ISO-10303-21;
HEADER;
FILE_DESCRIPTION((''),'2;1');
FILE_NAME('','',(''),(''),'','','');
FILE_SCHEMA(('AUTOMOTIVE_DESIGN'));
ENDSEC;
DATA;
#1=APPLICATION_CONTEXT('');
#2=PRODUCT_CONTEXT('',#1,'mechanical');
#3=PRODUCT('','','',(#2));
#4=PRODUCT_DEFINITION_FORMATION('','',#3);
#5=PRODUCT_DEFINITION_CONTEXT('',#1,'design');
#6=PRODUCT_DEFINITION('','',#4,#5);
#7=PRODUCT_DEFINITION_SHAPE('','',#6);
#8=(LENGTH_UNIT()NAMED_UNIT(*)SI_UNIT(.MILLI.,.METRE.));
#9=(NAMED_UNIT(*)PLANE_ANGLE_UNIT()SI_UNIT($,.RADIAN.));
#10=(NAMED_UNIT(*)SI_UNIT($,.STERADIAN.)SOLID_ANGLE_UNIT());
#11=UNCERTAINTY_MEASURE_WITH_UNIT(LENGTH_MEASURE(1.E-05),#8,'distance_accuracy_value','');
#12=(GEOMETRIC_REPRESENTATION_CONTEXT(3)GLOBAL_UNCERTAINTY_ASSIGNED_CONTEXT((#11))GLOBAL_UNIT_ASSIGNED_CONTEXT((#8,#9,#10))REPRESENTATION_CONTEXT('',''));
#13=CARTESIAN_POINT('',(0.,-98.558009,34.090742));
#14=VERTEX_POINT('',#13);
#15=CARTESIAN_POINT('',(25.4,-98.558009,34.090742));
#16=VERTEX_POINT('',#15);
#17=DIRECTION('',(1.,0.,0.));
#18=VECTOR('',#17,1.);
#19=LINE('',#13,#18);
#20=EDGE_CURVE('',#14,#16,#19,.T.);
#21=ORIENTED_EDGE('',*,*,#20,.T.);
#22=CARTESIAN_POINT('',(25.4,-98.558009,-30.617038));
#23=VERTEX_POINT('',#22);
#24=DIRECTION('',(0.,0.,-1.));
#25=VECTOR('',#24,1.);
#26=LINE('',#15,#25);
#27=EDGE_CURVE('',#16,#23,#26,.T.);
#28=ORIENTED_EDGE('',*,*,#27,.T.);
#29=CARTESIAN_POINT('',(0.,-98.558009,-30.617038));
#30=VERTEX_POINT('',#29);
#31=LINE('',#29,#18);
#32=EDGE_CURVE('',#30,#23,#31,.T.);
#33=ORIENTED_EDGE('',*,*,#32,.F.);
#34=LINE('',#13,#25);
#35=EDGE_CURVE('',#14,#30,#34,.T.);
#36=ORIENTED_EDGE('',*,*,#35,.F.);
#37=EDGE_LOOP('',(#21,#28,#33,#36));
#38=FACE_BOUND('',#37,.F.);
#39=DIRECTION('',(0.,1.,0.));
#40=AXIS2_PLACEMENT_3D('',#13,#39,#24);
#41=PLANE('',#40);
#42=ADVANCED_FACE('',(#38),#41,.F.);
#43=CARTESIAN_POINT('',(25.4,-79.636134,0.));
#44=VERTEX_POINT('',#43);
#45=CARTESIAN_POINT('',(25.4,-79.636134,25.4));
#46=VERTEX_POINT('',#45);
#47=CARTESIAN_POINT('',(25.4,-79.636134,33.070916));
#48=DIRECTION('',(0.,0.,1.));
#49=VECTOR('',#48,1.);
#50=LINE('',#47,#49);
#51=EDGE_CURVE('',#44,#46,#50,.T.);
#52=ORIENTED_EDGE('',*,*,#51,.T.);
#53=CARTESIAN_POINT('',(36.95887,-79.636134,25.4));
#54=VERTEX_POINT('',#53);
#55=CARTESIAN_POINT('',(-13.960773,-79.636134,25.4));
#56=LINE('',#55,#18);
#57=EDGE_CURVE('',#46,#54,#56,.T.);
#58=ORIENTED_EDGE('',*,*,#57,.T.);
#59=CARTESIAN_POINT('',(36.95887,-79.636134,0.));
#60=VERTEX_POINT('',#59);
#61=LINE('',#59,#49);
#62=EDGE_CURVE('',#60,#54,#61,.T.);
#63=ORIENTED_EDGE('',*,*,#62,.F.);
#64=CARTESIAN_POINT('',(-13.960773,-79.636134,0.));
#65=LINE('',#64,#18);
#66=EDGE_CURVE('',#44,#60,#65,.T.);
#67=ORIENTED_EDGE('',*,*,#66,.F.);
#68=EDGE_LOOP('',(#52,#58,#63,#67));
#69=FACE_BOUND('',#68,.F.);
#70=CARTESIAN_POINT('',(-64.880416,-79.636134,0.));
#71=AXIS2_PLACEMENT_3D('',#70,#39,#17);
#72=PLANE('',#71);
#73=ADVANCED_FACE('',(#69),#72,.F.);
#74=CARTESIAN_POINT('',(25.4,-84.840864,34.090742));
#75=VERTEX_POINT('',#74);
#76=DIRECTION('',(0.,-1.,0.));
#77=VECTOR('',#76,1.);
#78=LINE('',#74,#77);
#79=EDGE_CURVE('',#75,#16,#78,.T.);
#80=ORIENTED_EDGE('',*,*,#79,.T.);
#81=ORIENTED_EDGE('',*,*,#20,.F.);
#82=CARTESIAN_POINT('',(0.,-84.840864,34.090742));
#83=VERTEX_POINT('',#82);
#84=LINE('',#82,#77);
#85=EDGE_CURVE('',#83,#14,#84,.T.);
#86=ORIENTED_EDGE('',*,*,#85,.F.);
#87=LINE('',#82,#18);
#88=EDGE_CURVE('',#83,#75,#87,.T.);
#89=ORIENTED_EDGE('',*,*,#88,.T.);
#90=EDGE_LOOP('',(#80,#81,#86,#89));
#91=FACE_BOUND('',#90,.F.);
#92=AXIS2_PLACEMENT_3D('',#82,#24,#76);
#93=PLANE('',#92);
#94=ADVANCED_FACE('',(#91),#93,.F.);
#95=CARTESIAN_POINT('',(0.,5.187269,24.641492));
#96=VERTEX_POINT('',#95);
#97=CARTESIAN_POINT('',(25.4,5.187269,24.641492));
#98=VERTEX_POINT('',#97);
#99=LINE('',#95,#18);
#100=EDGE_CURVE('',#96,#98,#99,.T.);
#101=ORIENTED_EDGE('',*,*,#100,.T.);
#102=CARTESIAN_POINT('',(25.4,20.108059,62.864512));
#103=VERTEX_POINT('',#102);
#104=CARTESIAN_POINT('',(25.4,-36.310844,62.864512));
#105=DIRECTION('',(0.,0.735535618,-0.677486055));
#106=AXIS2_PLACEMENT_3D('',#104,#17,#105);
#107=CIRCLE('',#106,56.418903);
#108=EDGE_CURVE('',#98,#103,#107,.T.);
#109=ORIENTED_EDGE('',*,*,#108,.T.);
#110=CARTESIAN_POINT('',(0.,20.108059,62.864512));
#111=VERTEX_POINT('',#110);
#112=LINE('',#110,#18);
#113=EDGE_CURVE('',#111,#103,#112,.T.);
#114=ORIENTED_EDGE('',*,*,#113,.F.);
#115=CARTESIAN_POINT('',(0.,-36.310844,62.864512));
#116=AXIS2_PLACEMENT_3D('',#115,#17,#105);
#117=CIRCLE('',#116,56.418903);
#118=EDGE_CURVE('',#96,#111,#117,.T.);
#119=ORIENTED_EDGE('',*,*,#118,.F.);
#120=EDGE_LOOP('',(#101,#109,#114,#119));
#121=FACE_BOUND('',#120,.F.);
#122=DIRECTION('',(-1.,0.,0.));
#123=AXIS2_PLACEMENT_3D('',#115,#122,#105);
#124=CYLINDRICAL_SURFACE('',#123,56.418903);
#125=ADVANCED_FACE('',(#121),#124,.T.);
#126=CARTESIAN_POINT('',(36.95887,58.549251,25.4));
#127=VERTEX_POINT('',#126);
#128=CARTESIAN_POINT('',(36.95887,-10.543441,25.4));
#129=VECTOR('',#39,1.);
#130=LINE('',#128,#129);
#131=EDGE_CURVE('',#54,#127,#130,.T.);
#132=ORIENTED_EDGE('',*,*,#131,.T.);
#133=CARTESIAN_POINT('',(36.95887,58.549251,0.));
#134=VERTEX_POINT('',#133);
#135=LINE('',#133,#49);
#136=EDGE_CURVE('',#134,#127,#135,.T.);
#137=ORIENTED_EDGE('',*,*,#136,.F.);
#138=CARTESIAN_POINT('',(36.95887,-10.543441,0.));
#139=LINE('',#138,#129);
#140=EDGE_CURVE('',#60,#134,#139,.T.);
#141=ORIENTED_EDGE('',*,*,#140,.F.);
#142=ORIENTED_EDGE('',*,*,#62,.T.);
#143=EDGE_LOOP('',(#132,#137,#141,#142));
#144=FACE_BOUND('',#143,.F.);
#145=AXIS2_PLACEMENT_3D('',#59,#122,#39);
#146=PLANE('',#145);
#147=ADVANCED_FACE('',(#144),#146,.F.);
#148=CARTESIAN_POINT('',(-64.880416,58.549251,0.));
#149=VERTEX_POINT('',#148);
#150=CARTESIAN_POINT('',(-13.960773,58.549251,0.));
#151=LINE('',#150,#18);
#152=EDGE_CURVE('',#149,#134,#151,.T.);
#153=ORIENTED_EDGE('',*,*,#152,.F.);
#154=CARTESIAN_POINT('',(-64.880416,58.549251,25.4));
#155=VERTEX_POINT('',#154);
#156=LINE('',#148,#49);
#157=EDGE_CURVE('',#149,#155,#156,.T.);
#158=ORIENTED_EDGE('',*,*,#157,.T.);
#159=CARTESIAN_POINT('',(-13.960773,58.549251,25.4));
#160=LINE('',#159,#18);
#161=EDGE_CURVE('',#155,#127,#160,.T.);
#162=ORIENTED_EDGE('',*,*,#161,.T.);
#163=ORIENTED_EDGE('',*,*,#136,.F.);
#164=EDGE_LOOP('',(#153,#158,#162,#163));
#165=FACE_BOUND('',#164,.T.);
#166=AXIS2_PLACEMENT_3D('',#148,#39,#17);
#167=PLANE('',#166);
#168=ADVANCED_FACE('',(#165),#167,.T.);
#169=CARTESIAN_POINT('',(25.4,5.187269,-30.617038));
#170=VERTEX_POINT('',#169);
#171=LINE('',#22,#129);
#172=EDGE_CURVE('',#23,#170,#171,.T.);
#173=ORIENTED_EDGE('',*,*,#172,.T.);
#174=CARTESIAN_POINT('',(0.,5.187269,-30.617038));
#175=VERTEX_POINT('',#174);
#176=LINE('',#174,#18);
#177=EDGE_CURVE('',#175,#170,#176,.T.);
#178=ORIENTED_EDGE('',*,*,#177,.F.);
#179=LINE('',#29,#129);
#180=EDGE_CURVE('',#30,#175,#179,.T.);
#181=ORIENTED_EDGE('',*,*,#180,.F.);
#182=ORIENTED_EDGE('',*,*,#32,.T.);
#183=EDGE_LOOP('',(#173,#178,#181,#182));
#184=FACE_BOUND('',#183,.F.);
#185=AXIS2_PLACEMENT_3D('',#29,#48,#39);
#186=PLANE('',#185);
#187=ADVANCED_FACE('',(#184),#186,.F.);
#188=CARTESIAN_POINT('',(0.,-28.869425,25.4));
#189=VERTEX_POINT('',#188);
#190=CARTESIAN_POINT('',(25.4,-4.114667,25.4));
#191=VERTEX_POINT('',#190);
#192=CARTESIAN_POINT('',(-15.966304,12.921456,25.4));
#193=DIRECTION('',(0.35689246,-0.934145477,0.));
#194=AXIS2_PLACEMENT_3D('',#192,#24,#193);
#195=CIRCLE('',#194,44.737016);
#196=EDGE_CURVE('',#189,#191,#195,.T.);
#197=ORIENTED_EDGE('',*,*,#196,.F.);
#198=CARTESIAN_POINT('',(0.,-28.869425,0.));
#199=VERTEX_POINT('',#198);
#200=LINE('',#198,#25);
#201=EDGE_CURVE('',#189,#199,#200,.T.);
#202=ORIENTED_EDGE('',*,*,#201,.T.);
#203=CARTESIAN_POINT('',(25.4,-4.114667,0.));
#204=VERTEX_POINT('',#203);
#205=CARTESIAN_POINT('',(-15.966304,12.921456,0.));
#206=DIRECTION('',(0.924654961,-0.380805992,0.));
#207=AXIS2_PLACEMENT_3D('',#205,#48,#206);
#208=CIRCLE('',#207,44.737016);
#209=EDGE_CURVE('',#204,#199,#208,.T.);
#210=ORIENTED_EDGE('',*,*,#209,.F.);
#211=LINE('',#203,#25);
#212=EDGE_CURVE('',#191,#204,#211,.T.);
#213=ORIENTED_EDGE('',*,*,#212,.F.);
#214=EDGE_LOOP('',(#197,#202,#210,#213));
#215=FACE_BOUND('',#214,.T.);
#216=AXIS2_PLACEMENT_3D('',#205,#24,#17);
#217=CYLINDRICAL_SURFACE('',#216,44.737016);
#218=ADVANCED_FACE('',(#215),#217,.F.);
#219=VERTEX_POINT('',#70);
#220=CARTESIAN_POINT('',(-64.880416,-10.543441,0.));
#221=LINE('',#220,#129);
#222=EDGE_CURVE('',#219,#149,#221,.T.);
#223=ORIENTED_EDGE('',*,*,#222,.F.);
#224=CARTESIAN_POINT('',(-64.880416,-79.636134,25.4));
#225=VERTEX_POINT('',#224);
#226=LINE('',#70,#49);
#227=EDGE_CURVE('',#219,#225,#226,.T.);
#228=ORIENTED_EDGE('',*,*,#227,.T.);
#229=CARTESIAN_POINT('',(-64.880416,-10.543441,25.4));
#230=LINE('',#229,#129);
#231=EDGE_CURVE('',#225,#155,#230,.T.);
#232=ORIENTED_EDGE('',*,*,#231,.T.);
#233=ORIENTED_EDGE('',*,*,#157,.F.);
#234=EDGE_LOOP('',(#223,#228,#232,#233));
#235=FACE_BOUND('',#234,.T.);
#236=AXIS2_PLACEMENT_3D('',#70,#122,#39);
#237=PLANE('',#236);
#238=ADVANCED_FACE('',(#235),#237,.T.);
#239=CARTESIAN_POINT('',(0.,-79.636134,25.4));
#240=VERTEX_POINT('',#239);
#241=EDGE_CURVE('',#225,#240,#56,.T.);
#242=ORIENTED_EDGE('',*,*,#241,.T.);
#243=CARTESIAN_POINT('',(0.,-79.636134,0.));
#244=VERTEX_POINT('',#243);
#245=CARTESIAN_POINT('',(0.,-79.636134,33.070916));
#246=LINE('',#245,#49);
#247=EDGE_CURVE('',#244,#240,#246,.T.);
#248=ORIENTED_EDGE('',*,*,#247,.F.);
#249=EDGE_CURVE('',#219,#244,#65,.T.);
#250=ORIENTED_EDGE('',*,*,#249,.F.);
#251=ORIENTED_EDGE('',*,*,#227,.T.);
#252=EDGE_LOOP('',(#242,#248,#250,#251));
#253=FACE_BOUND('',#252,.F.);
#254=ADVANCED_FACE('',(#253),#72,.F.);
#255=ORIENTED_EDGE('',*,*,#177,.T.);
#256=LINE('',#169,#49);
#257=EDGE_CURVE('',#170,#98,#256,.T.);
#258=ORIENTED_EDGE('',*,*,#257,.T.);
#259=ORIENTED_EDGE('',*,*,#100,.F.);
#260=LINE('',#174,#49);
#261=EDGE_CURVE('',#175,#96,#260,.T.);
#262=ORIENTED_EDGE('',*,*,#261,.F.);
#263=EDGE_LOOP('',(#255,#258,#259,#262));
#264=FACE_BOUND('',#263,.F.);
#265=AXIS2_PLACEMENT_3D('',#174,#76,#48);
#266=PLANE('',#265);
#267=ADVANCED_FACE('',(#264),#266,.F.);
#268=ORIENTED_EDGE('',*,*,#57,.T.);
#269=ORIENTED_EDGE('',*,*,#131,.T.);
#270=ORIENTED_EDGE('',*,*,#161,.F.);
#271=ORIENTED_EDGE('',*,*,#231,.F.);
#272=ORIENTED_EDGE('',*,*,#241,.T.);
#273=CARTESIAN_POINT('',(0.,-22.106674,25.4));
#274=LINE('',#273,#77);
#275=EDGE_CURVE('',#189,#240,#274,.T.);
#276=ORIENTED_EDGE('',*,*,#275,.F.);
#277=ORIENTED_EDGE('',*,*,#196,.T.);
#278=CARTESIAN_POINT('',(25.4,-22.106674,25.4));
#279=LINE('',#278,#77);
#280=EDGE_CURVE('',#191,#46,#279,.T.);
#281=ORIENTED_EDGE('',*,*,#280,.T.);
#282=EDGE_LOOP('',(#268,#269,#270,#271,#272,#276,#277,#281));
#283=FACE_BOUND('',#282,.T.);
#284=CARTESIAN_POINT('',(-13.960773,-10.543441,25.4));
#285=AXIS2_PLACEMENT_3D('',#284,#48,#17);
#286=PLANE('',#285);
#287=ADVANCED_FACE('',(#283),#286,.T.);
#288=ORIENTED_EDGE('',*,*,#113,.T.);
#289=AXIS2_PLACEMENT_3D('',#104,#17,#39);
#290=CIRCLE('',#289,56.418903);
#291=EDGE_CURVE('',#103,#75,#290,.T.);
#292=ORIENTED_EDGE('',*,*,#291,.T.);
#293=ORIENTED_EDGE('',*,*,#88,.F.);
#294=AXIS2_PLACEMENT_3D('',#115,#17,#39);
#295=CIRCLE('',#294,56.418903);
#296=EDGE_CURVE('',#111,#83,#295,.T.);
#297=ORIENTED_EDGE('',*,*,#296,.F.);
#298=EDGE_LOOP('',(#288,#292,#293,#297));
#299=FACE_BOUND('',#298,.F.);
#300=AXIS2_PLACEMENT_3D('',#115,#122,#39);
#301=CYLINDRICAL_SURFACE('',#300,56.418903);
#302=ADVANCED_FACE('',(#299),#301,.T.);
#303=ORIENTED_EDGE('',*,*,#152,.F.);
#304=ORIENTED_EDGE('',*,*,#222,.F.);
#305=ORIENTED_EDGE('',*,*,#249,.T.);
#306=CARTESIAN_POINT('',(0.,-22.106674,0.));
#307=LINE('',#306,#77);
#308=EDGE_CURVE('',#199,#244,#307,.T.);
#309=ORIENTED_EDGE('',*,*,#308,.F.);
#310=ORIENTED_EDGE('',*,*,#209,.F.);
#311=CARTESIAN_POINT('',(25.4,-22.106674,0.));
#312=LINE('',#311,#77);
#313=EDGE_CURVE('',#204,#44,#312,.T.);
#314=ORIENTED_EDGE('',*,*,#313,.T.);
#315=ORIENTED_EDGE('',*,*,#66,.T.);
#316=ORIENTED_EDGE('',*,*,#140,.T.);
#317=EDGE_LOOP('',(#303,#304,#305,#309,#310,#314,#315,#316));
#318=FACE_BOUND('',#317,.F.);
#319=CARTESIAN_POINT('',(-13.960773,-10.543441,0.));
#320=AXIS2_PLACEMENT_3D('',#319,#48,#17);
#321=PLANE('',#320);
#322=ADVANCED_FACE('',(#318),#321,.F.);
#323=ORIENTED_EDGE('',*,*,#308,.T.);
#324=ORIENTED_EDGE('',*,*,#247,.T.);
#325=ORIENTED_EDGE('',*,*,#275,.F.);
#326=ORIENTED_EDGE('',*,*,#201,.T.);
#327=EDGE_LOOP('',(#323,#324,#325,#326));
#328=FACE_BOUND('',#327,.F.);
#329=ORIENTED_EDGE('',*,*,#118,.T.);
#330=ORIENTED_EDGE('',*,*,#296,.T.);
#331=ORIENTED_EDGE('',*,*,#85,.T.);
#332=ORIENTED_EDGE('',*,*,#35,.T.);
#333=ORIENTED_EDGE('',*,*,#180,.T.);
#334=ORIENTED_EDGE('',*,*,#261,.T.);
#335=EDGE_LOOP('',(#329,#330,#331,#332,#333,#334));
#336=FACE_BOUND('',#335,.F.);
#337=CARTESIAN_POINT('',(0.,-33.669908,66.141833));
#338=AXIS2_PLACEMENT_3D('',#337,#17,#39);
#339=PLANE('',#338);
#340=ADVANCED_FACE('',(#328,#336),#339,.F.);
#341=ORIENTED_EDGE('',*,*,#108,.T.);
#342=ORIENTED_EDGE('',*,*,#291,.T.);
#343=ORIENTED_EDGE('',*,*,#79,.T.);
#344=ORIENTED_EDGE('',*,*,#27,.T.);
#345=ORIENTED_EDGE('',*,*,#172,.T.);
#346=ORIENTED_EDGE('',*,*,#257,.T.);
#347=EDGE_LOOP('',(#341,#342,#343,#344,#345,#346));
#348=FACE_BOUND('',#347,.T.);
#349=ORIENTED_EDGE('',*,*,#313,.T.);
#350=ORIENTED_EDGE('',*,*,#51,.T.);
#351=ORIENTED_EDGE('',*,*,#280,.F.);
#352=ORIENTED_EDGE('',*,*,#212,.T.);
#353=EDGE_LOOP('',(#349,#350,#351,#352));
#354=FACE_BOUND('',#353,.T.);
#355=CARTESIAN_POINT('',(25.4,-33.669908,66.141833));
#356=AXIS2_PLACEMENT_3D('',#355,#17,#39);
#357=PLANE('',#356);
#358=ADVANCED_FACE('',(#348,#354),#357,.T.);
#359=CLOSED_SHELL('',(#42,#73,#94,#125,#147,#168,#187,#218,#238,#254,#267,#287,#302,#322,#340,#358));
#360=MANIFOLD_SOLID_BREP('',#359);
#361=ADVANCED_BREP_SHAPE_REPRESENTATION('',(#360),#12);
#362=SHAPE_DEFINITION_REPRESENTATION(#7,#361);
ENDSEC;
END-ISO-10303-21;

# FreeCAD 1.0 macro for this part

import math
import FreeCAD as App
import Part
import Sketcher
Q = App.Units.Quantity


def add_polygon(sketch, points):
    """Adds a closed chain of lines whose ends are joined by coincident constraints."""
    first, n = sketch.GeometryCount, len(points)
    for a, b in zip(points, points[1:] + points[:1]):
        sketch.addGeometry(Part.LineSegment(App.Vector(*a, 0), App.Vector(*b, 0)), False)
    for i in range(n):
        sketch.addConstraint(Sketcher.Constraint("Coincident", first + i, 2, first + (i + 1) % n, 1))

doc = App.newDocument("Part")
body = doc.addObject("PartDesign::Body", "Body")

sketch1 = body.newObject("Sketcher::SketchObject", "Sketch")
sketch1.AttachmentSupport = (doc.getObject("YZ_Plane"), [""])
sketch1.MapMode = "FlatFace"
sketch1.addGeometry([
    Part.ArcOfCircle(Part.Circle(App.Vector(-36, 63, 0), App.Vector(0, 0, 1), 56), math.radians(-43), math.radians(0)),
    Part.ArcOfCircle(Part.Circle(App.Vector(-36, 63, 0), App.Vector(0, 0, 1), 56), math.radians(0), math.radians(211)),
    Part.LineSegment(App.Vector(-85, 34, 0), App.Vector(-99, 34, 0)),
    Part.LineSegment(App.Vector(-99, 34, 0), App.Vector(-99, -31, 0)),
    Part.LineSegment(App.Vector(-99, -31, 0), App.Vector(5, -31, 0)),
    Part.LineSegment(App.Vector(5, -31, 0), App.Vector(5, 25, 0)),
], False)
sketch1.addConstraint([
    Sketcher.Constraint("Tangent", 0, 2, 1, 1),
    Sketcher.Constraint("Coincident", 1, 2, 2, 1),
    Sketcher.Constraint("Coincident", 2, 2, 3, 1),
    Sketcher.Constraint("Coincident", 3, 2, 4, 1),
    Sketcher.Constraint("Coincident", 4, 2, 5, 1),
    Sketcher.Constraint("Coincident", 5, 2, 0, 1),
    Sketcher.Constraint("Horizontal", 2),
    Sketcher.Constraint("Vertical", 3),
    Sketcher.Constraint("Horizontal", 4),
    Sketcher.Constraint("Vertical", 5),
    Sketcher.Constraint("Equal", 0, 1),
    Sketcher.Constraint("Horizontal", 1, 3, 0, 2),
    Sketcher.Constraint("Radius", 0, Q("56.418903 mm")),
    Sketcher.Constraint("DistanceY", 3, 2, 3, 1, Q("64.70778 mm")),
    Sketcher.Constraint("DistanceY", 5, 1, 5, 2, Q("55.25853 mm")),
    Sketcher.Constraint("DistanceX", 2, 2, 2, 1, Q("13.717145 mm")),
    Sketcher.Constraint("DistanceX", 4, 1, 4, 2, Q("103.745278 mm")),
    Sketcher.Constraint("DistanceX", -1, 1, 0, 2, Q("20.108059 mm")),
    Sketcher.Constraint("DistanceY", -1, 1, 5, 2, Q("24.641492 mm")),
])
pad1 = body.newObject("PartDesign::Pad", "Pad")
pad1.Profile = sketch1
pad1.Length = Q("1 in")

sketch2 = body.newObject("Sketcher::SketchObject", "Sketch001")
sketch2.AttachmentSupport = (doc.getObject("XY_Plane"), [""])
sketch2.MapMode = "FlatFace"
add_polygon(sketch2, [(-65, 59), (-65, -80), (37, -80), (37, 59)])
sketch2.addGeometry(Part.Circle(App.Vector(-16, 13, 0), App.Vector(0, 0, 1), 45), False)
sketch2.addConstraint([
    Sketcher.Constraint("Vertical", 0),
    Sketcher.Constraint("Horizontal", 1),
    Sketcher.Constraint("Vertical", 2),
    Sketcher.Constraint("Horizontal", 3),
    Sketcher.Constraint("Diameter", 4, Q("89.474032 mm")),
    Sketcher.Constraint("DistanceX", 1, 1, 1, 2, Q("101.839285 mm")),
    Sketcher.Constraint("DistanceY", 0, 2, 0, 1, Q("138.185386 mm")),
    Sketcher.Constraint("DistanceX", -1, 1, 1, 2, Q("36.95887 mm")),
    Sketcher.Constraint("DistanceY", -1, 1, 2, 2, Q("58.549251 mm")),
    Sketcher.Constraint("DistanceY", 0, 2, 4, 3, Q("92.55759 mm")),
    Sketcher.Constraint("DistanceX", 4, 3, -1, 1, Q("15.966304 mm")),
])
pad2 = body.newObject("PartDesign::Pad", "Pad001")
pad2.Profile = sketch2
pad2.Length = Q("1 in")

doc.recompute()
